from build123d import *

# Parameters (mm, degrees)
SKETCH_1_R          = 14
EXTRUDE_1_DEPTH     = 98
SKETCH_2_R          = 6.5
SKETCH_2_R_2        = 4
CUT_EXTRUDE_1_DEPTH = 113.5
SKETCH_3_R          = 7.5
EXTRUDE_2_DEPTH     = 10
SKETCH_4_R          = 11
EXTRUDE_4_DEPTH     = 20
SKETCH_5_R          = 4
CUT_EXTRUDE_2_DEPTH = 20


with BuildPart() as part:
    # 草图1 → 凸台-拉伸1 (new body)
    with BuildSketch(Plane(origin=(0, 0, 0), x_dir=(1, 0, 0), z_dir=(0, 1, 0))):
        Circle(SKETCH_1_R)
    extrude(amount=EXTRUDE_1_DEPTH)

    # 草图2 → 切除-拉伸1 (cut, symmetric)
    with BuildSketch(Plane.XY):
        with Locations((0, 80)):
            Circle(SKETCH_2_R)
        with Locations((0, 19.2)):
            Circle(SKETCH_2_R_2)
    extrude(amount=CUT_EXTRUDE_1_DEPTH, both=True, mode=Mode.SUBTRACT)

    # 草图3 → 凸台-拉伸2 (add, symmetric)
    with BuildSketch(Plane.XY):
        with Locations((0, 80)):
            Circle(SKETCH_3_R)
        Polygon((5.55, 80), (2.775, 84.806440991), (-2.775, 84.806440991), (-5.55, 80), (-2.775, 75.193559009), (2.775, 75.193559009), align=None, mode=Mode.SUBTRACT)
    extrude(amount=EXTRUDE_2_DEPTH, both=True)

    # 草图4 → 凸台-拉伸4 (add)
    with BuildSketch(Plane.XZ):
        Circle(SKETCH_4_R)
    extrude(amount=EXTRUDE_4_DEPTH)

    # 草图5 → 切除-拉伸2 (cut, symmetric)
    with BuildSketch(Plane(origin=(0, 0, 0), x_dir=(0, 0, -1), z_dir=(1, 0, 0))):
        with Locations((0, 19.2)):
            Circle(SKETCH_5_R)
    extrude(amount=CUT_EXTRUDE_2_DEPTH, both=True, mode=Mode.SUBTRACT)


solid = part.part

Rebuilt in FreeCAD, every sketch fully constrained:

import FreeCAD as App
import Part
import Sketcher
Q = App.Units.Quantity


def add_polygon(sketch, points):
    """Adds a closed chain of lines whose ends are joined by coincident constraints."""
    first, n = sketch.GeometryCount, len(points)
    for a, b in zip(points, points[1:] + points[:1]):
        sketch.addGeometry(Part.LineSegment(App.Vector(*a, 0), App.Vector(*b, 0)), False)
    for i in range(n):
        sketch.addConstraint(Sketcher.Constraint("Coincident", first + i, 2, first + (i + 1) % n, 1))

doc = App.newDocument("Part")
body = doc.addObject("PartDesign::Body", "Body")

sketch1 = body.newObject("Sketcher::SketchObject", "Sketch")
sketch1.AttachmentSupport = (doc.getObject("XZ_Plane"), [""])
sketch1.MapMode = "FlatFace"
sketch1.addGeometry(Part.Circle(App.Vector(0, 0, 0), App.Vector(0, 0, 1), 14), False)
sketch1.addConstraint(Sketcher.Constraint("Coincident", 0, 3, -1, 1))
sketch1.addConstraint(Sketcher.Constraint("Diameter", 0, 28.0))
pad1 = body.newObject("PartDesign::Pad", "Pad")
pad1.Profile = sketch1
pad1.Length = 98
pad1.Reversed = True

sketch2 = body.newObject("Sketcher::SketchObject", "Sketch001")
sketch2.AttachmentSupport = (doc.getObject("XY_Plane"), [""])
sketch2.MapMode = "FlatFace"
sketch2.addGeometry(Part.Circle(App.Vector(0, 80, 0), App.Vector(0, 0, 1), 6.5), False)
sketch2.addGeometry(Part.Circle(App.Vector(0, 19.2, 0), App.Vector(0, 0, 1), 4), False)
sketch2.addConstraint(Sketcher.Constraint("PointOnObject", 0, 3, -2))
sketch2.addConstraint(Sketcher.Constraint("PointOnObject", 1, 3, -2))
sketch2.addConstraint(Sketcher.Constraint("Diameter", 0, 13.0))
sketch2.addConstraint(Sketcher.Constraint("Diameter", 1, 8.0))
sketch2.addConstraint(Sketcher.Constraint("DistanceY", -1, 1, 0, 3, 80.0))
sketch2.addConstraint(Sketcher.Constraint("DistanceY", -1, 1, 1, 3, 19.2))
pocket1 = body.newObject("PartDesign::Pocket", "Pocket")
pocket1.Profile = sketch2
pocket1.Length = 227
pocket1.Midplane = True

sketch3 = body.newObject("Sketcher::SketchObject", "Sketch002")
sketch3.AttachmentSupport = (doc.getObject("XY_Plane"), [""])
sketch3.MapMode = "FlatFace"
sketch3.addGeometry(Part.Circle(App.Vector(0, 80, 0), App.Vector(0, 0, 1), 8), False)
add_polygon(sketch3, [(3, 85), (6, 80), (3, 75), (-3, 75), (-6, 80), (-3, 85)])
sketch3.addConstraint(Sketcher.Constraint("Horizontal", 3))
sketch3.addConstraint(Sketcher.Constraint("Horizontal", 6))
sketch3.addConstraint(Sketcher.Constraint("Symmetric", 1, 2, 4, 2, -2))
sketch3.addConstraint(Sketcher.Constraint("PointOnObject", 0, 3, -2))
sketch3.addConstraint(Sketcher.Constraint("Parallel", 1, 4))
sketch3.addConstraint(Sketcher.Constraint("Parallel", 2, 5))
sketch3.addConstraint(Sketcher.Constraint("Horizontal", 0, 3, 1, 2))
sketch3.addConstraint(Sketcher.Constraint("Vertical", 3, 2, 5, 2))
sketch3.addConstraint(Sketcher.Constraint("Vertical", 2, 2, 6, 2))
sketch3.addConstraint(Sketcher.Constraint("Diameter", 0, 15.0))
sketch3.addConstraint(Sketcher.Constraint("Angle", 1, Q("-60 deg")))
sketch3.addConstraint(Sketcher.Constraint("DistanceY", -1, 1, 0, 3, 80.0))
sketch3.addConstraint(Sketcher.Constraint("DistanceX", 3, 2, 3, 1, 5.55))
sketch3.addConstraint(Sketcher.Constraint("DistanceX", 4, 2, 1, 2, 11.1))
pad2 = body.newObject("PartDesign::Pad", "Pad001")
pad2.Profile = sketch3
pad2.Length = 20
pad2.Midplane = True

sketch4 = body.newObject("Sketcher::SketchObject", "Sketch003")
sketch4.AttachmentSupport = (doc.getObject("XZ_Plane"), [""])
sketch4.MapMode = "FlatFace"
sketch4.addGeometry(Part.Circle(App.Vector(0, 0, 0), App.Vector(0, 0, 1), 11), False)
sketch4.addConstraint(Sketcher.Constraint("Coincident", 0, 3, -1, 1))
sketch4.addConstraint(Sketcher.Constraint("Diameter", 0, 22.0))
pad3 = body.newObject("PartDesign::Pad", "Pad002")
pad3.Profile = sketch4
pad3.Length = 20

sketch5 = body.newObject("Sketcher::SketchObject", "Sketch004")
sketch5.AttachmentSupport = (doc.getObject("YZ_Plane"), [""])
sketch5.MapMode = "FlatFace"
sketch5.addGeometry(Part.Circle(App.Vector(19.2, 0, 0), App.Vector(0, 0, 1), 4), False)
sketch5.addConstraint(Sketcher.Constraint("PointOnObject", 0, 3, -1))
sketch5.addConstraint(Sketcher.Constraint("Diameter", 0, 8.0))
sketch5.addConstraint(Sketcher.Constraint("DistanceX", -1, 1, 0, 3, 19.2))
pocket2 = body.newObject("PartDesign::Pocket", "Pocket001")
pocket2.Profile = sketch5
pocket2.Length = 40
pocket2.Midplane = True

doc.recompute()
